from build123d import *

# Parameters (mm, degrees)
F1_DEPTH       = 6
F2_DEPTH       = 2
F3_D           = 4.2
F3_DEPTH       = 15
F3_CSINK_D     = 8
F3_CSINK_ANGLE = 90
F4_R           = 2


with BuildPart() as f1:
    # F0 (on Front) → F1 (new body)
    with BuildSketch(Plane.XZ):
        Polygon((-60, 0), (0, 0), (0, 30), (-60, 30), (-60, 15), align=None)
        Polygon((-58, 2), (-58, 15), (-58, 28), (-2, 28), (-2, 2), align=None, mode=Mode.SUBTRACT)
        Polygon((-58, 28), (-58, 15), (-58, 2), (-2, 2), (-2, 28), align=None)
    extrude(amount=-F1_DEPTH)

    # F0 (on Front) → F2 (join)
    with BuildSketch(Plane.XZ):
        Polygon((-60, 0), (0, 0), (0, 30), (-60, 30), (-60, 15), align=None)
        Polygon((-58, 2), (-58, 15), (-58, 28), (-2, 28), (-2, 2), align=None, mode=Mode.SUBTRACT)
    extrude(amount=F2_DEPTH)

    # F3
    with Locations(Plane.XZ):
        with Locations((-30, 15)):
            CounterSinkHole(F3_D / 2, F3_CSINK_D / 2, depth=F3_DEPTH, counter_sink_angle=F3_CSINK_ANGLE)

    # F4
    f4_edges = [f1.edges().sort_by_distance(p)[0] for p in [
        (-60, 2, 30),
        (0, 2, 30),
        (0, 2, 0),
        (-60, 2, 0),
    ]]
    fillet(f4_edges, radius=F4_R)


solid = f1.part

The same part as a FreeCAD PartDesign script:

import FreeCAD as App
import Part
import Sketcher

V = App.Vector


def edges_at(feature, points):
    """Names of the edges that pass closest to the given points."""
    edges = feature.Shape.Edges
    near = lambda p: min(range(len(edges)), key=lambda i: edges[i].distToShape(Part.Vertex(*p))[0])
    return sorted({f"Edge{near(p) + 1}" for p in points})

doc = App.newDocument("Part")
body = doc.addObject("PartDesign::Body", "Body")

sketch1 = body.newObject("Sketcher::SketchObject", "Sketch")
sketch1.AttachmentSupport = (doc.getObject("XZ_Plane"), [""])
sketch1.MapMode = "FlatFace"
sketch1.addGeometry(Part.LineSegment(V(-60, 0, 0), V(0, 0, 0)), False)
sketch1.addGeometry(Part.LineSegment(V(0, 0, 0), V(0, 30, 0)), False)
sketch1.addGeometry(Part.LineSegment(V(0, 30, 0), V(-60, 30, 0)), False)
sketch1.addGeometry(Part.LineSegment(V(-60, 30, 0), V(-60, 0, 0)), False)
sketch1.addConstraint(Sketcher.Constraint("Coincident", 0, 2, 1, 1))
sketch1.addConstraint(Sketcher.Constraint("Coincident", 1, 2, 2, 1))
sketch1.addConstraint(Sketcher.Constraint("Coincident", 2, 2, 3, 1))
sketch1.addConstraint(Sketcher.Constraint("Coincident", 3, 2, 0, 1))
sketch1.addConstraint(Sketcher.Constraint("Horizontal", 0))
sketch1.addConstraint(Sketcher.Constraint("Vertical", 1))
sketch1.addConstraint(Sketcher.Constraint("Horizontal", 2))
sketch1.addConstraint(Sketcher.Constraint("Vertical", 3))
sketch1.addConstraint(Sketcher.Constraint("Coincident", 0, 2, -1, 1))
sketch1.addConstraint(Sketcher.Constraint("DistanceX", 0, 1, 0, 2, 60.0))
sketch1.addConstraint(Sketcher.Constraint("DistanceY", 1, 1, 1, 2, 30.0))
pad1 = body.newObject("PartDesign::Pad", "Pad")
pad1.Profile = sketch1
pad1.Length = 6
pad1.Reversed = True

sketch2 = body.newObject("Sketcher::SketchObject", "Sketch001")
sketch2.AttachmentSupport = (doc.getObject("XZ_Plane"), [""])
sketch2.MapMode = "FlatFace"
sketch2.addGeometry(Part.LineSegment(V(-60, 0, 0), V(0, 0, 0)), False)
sketch2.addGeometry(Part.LineSegment(V(0, 0, 0), V(0, 30, 0)), False)
sketch2.addGeometry(Part.LineSegment(V(0, 30, 0), V(-60, 30, 0)), False)
sketch2.addGeometry(Part.LineSegment(V(-60, 30, 0), V(-60, 0, 0)), False)
sketch2.addGeometry(Part.LineSegment(V(-2, 2, 0), V(-58, 2, 0)), False)
sketch2.addGeometry(Part.LineSegment(V(-58, 2, 0), V(-58, 28, 0)), False)
sketch2.addGeometry(Part.LineSegment(V(-58, 28, 0), V(-2, 28, 0)), False)
sketch2.addGeometry(Part.LineSegment(V(-2, 28, 0), V(-2, 2, 0)), False)
sketch2.addConstraint(Sketcher.Constraint("Coincident", 0, 2, 1, 1))
sketch2.addConstraint(Sketcher.Constraint("Coincident", 1, 2, 2, 1))
sketch2.addConstraint(Sketcher.Constraint("Coincident", 2, 2, 3, 1))
sketch2.addConstraint(Sketcher.Constraint("Coincident", 3, 2, 0, 1))
sketch2.addConstraint(Sketcher.Constraint("Coincident", 4, 2, 5, 1))
sketch2.addConstraint(Sketcher.Constraint("Coincident", 5, 2, 6, 1))
sketch2.addConstraint(Sketcher.Constraint("Coincident", 6, 2, 7, 1))
sketch2.addConstraint(Sketcher.Constraint("Coincident", 7, 2, 4, 1))
sketch2.addConstraint(Sketcher.Constraint("Horizontal", 0))
sketch2.addConstraint(Sketcher.Constraint("Vertical", 1))
sketch2.addConstraint(Sketcher.Constraint("Horizontal", 2))
sketch2.addConstraint(Sketcher.Constraint("Vertical", 3))
sketch2.addConstraint(Sketcher.Constraint("Horizontal", 4))
sketch2.addConstraint(Sketcher.Constraint("Vertical", 5))
sketch2.addConstraint(Sketcher.Constraint("Horizontal", 6))
sketch2.addConstraint(Sketcher.Constraint("Vertical", 7))
sketch2.addConstraint(Sketcher.Constraint("Coincident", 0, 2, -1, 1))
sketch2.addConstraint(Sketcher.Constraint("DistanceX", 0, 1, 0, 2, 60.0))
sketch2.addConstraint(Sketcher.Constraint("DistanceX", 4, 2, 4, 1, 56.0))
sketch2.addConstraint(Sketcher.Constraint("DistanceY", 1, 1, 1, 2, 30.0))
sketch2.addConstraint(Sketcher.Constraint("DistanceY", 5, 1, 5, 2, 26.0))
sketch2.addConstraint(Sketcher.Constraint("DistanceX", 4, 2, -1, 1, 58.0))
sketch2.addConstraint(Sketcher.Constraint("DistanceY", -1, 1, 4, 2, 2.0))
pad2 = body.newObject("PartDesign::Pad", "Pad001")
pad2.Profile = sketch2
pad2.Length = 2

sketch3 = body.newObject("Sketcher::SketchObject", "Sketch002")
sketch3.AttachmentSupport = (doc.getObject("XZ_Plane"), [""])
sketch3.MapMode = "FlatFace"
sketch3.addGeometry(Part.Circle(V(-30, 15, 0), V(0, 0, 1), 2.1), False)
sketch3.addConstraint(Sketcher.Constraint("Diameter", 0, 4.2))
sketch3.addConstraint(Sketcher.Constraint("DistanceX", 0, 3, -1, 1, 30.0))
sketch3.addConstraint(Sketcher.Constraint("DistanceY", -1, 1, 0, 3, 15.0))
doc.recompute()
hole = body.newObject("PartDesign::Hole", "Hole")
hole.Profile = sketch3
hole.ThreadType = "None"
hole.Diameter = 4.2
hole.DepthType = "Dimension"
hole.Depth = 15
hole.DrillPoint = "Flat"
hole.HoleCutType = "Countersink"
hole.HoleCutDiameter = 8
hole.HoleCutCountersinkAngle = 90
doc.recompute()

fillet = body.newObject("PartDesign::Fillet", "Fillet")
fillet.Base = (hole, edges_at(hole, [
    (-60, 2, 30),
    (0, 2, 30),
    (0, 2, 0),
    (-60, 2, 0),
]))
fillet.Radius = 2

doc.recompute()
